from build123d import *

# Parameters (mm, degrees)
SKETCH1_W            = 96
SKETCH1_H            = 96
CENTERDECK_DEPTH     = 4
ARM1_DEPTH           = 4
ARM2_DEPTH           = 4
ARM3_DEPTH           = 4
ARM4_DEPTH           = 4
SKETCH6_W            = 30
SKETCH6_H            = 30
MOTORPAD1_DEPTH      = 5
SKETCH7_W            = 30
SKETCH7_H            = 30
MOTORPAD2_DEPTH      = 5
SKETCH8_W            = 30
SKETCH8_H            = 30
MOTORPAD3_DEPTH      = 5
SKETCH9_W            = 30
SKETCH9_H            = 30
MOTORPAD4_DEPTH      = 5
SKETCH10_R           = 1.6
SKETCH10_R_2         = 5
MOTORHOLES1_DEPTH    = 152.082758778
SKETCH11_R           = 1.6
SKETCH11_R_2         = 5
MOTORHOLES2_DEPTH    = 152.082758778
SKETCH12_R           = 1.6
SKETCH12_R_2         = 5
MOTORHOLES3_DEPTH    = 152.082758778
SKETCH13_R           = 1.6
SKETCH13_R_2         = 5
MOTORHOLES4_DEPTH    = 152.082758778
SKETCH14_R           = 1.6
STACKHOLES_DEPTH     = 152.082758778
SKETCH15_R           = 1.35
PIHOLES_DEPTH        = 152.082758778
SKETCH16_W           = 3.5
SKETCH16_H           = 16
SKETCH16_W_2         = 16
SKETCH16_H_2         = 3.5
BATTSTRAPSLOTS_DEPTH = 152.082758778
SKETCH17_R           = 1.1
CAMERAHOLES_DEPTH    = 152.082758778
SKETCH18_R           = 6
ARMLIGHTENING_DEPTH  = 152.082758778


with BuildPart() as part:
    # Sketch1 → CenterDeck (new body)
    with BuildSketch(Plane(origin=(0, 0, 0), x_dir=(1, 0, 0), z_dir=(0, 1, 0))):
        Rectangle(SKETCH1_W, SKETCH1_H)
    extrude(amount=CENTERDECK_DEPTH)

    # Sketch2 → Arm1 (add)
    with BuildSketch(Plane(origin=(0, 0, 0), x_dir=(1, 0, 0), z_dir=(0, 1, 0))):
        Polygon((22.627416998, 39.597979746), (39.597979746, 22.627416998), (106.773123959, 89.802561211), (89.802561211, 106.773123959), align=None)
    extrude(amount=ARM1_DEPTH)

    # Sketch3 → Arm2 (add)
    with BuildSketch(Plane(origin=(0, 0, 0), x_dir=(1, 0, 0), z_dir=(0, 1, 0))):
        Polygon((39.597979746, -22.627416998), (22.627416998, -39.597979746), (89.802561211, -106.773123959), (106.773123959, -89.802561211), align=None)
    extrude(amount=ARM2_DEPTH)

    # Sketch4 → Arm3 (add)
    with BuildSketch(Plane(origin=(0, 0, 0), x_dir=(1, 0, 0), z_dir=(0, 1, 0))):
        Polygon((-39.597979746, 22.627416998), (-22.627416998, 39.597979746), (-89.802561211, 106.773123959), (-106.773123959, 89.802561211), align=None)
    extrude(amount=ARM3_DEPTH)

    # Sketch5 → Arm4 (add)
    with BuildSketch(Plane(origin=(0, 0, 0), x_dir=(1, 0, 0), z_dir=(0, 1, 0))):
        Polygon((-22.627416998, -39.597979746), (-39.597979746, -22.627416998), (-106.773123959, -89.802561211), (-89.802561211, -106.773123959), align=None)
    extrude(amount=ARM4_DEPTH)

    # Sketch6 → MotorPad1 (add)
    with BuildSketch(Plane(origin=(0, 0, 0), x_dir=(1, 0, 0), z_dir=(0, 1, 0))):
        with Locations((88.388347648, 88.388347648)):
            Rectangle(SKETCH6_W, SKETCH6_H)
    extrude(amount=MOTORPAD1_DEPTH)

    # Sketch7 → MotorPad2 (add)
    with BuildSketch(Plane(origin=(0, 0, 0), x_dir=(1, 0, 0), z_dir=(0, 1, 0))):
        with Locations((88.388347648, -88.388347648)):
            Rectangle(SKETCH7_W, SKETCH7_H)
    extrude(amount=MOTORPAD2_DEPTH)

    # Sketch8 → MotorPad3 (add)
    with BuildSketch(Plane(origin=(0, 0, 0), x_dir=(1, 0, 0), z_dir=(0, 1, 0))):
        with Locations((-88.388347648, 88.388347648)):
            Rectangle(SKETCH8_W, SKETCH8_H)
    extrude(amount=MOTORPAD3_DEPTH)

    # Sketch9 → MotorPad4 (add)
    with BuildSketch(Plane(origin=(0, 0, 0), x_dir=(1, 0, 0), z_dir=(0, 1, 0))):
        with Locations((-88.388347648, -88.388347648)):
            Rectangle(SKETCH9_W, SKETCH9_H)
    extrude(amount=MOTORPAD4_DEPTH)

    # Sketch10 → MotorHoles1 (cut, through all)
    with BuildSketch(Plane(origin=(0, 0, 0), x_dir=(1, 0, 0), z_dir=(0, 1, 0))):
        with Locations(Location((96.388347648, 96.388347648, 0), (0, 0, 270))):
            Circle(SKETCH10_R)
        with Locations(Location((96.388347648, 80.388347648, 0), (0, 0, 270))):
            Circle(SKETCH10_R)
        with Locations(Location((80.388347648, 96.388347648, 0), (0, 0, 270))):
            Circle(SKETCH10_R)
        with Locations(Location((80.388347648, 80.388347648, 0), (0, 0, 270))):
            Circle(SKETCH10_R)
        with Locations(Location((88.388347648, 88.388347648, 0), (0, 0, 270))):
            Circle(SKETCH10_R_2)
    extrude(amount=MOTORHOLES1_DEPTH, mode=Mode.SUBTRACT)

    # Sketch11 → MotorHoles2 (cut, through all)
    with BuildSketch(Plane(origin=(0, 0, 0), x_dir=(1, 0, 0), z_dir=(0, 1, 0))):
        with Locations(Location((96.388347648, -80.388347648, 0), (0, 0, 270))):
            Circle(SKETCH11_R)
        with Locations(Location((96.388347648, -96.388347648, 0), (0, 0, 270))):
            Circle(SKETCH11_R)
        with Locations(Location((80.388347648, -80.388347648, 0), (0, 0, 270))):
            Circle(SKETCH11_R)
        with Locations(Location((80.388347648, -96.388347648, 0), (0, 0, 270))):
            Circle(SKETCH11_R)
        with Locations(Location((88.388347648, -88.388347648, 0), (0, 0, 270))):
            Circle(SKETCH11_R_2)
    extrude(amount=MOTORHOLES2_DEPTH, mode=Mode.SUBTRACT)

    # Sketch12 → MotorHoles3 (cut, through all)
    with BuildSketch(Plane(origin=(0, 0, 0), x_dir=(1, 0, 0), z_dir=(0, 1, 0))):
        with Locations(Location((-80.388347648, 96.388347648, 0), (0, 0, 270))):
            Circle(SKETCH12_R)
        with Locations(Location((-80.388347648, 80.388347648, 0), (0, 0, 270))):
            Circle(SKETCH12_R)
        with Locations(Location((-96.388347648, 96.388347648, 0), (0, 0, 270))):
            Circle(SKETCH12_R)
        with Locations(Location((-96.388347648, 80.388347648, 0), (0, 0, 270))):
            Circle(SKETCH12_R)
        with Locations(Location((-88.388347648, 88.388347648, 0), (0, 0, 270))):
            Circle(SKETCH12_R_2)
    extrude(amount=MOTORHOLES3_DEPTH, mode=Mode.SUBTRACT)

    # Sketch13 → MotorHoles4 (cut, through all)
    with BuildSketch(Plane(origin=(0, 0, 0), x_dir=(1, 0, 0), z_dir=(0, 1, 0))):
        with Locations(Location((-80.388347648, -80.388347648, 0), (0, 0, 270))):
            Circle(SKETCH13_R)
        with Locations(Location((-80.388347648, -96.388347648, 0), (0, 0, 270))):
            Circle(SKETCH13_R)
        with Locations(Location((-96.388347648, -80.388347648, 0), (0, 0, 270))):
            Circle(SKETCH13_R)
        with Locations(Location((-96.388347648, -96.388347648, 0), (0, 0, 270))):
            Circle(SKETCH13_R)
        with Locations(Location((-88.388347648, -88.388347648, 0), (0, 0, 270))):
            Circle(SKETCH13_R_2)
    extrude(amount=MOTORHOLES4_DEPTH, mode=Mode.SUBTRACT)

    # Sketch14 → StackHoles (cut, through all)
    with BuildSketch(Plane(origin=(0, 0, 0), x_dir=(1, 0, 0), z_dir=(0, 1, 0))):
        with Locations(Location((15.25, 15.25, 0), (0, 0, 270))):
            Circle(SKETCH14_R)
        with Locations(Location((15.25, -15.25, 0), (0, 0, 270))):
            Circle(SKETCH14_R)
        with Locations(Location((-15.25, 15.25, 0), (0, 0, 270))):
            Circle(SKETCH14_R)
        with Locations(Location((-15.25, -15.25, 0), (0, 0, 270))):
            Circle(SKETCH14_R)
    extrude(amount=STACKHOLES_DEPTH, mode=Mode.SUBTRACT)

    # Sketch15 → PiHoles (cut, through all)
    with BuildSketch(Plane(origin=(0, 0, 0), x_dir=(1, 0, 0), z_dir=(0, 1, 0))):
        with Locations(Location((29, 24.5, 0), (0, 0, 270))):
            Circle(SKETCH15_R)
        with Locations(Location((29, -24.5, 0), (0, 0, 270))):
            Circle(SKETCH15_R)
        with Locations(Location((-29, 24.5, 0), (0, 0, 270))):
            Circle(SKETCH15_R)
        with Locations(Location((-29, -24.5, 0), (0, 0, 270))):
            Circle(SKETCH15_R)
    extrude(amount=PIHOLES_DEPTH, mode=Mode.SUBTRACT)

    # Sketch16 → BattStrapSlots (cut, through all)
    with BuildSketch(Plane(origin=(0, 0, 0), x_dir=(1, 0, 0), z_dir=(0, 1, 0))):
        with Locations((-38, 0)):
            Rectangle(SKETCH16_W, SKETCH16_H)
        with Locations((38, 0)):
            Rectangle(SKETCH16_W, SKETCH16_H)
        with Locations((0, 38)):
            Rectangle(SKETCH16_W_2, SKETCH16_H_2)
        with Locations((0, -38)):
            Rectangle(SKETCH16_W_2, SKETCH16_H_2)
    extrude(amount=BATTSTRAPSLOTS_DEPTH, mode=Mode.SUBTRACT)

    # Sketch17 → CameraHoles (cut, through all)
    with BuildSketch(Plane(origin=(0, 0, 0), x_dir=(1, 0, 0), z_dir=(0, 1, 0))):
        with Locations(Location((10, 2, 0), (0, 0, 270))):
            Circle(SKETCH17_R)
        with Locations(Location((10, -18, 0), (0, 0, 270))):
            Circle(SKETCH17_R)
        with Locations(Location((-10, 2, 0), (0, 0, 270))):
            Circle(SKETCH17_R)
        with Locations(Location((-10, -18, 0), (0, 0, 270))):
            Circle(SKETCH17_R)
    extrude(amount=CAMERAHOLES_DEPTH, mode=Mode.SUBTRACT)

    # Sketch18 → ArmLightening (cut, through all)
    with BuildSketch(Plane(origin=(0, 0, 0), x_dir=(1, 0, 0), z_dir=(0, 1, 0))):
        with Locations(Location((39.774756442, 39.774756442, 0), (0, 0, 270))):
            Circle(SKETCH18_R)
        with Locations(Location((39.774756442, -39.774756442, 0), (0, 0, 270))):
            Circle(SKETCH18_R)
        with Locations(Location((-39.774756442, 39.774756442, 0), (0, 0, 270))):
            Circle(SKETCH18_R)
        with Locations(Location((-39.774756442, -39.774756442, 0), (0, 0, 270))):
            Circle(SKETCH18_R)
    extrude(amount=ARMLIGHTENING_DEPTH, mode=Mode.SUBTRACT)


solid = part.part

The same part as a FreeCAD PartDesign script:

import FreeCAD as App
import Part
import Sketcher

V = App.Vector
Q = App.Units.Quantity

doc = App.newDocument("Part")
body = doc.addObject("PartDesign::Body", "Body")

# Sketch on XZ plane
sketch1 = body.newObject("Sketcher::SketchObject", "Sketch")
sketch1.AttachmentSupport = (doc.getObject("XZ_Plane"), [""])
sketch1.MapMode = "FlatFace"
sketch1.addGeometry([
    Part.LineSegment(V(-48, -48, 0), V(-48, 48, 0)),
    Part.LineSegment(V(-48, 48, 0), V(48, 48, 0)),
    Part.LineSegment(V(48, 48, 0), V(48, -48, 0)),
    Part.LineSegment(V(48, -48, 0), V(-48, -48, 0)),
], False)
sketch1.addConstraint([
    Sketcher.Constraint("Coincident", 0, 2, 1, 1),
    Sketcher.Constraint("Coincident", 1, 2, 2, 1),
    Sketcher.Constraint("Coincident", 2, 2, 3, 1),
    Sketcher.Constraint("Coincident", 3, 2, 0, 1),
    Sketcher.Constraint("Vertical", 0),
    Sketcher.Constraint("Horizontal", 1),
    Sketcher.Constraint("Vertical", 2),
    Sketcher.Constraint("Horizontal", 3),
    Sketcher.Constraint("Symmetric", 0, 2, 2, 2, -1, 1),
    Sketcher.Constraint("Equal", 3, 0),
    Sketcher.Constraint("DistanceX", 1, 1, 1, 2, 96.0),
])
pad1 = body.newObject("PartDesign::Pad", "Pad")
pad1.Profile = sketch1
pad1.Length = 4
pad1.Reversed = True

# Sketch on XZ plane
sketch2 = body.newObject("Sketcher::SketchObject", "Sketch001")
sketch2.AttachmentSupport = (doc.getObject("XZ_Plane"), [""])
sketch2.MapMode = "FlatFace"
sketch2.addGeometry([
    Part.LineSegment(V(22.627417, -39.59798, 0), V(39.59798, -22.627417, 0)),
    Part.LineSegment(V(39.59798, -22.627417, 0), V(106.773124, -89.802561, 0)),
    Part.LineSegment(V(106.773124, -89.802561, 0), V(89.802561, -106.773124, 0)),
    Part.LineSegment(V(89.802561, -106.773124, 0), V(22.627417, -39.59798, 0)),
], False)
sketch2.addConstraint([
    Sketcher.Constraint("Coincident", 0, 2, 1, 1),
    Sketcher.Constraint("Coincident", 1, 2, 2, 1),
    Sketcher.Constraint("Coincident", 2, 2, 3, 1),
    Sketcher.Constraint("Coincident", 3, 2, 0, 1),
    Sketcher.Constraint("Perpendicular", 0, 1),
    Sketcher.Constraint("Perpendicular", 1, 2),
    Sketcher.Constraint("Perpendicular", 2, 3),
    Sketcher.Constraint("Angle", 0, Q("45 deg")),
    Sketcher.Constraint("Distance", 0, 24.0),
    Sketcher.Constraint("Distance", 1, 95.0),
    Sketcher.Constraint("DistanceX", -1, 1, 0, 2, 39.59798),
    Sketcher.Constraint("DistanceY", 1, 2, -1, 1, 89.802561),
])
pad2 = body.newObject("PartDesign::Pad", "Pad001")
pad2.Profile = sketch2
pad2.Length = 4
pad2.Reversed = True

# Sketch on XZ plane
sketch3 = body.newObject("Sketcher::SketchObject", "Sketch002")
sketch3.AttachmentSupport = (doc.getObject("XZ_Plane"), [""])
sketch3.MapMode = "FlatFace"
sketch3.addGeometry([
    Part.LineSegment(V(39.59798, 22.627417, 0), V(22.627417, 39.59798, 0)),
    Part.LineSegment(V(22.627417, 39.59798, 0), V(89.802561, 106.773124, 0)),
    Part.LineSegment(V(89.802561, 106.773124, 0), V(106.773124, 89.802561, 0)),
    Part.LineSegment(V(106.773124, 89.802561, 0), V(39.59798, 22.627417, 0)),
], False)
sketch3.addConstraint([
    Sketcher.Constraint("Coincident", 0, 2, 1, 1),
    Sketcher.Constraint("Coincident", 1, 2, 2, 1),
    Sketcher.Constraint("Coincident", 2, 2, 3, 1),
    Sketcher.Constraint("Coincident", 3, 2, 0, 1),
    Sketcher.Constraint("Perpendicular", 0, 1),
    Sketcher.Constraint("Perpendicular", 1, 2),
    Sketcher.Constraint("Perpendicular", 2, 3),
    Sketcher.Constraint("Angle", 0, Q("135 deg")),
    Sketcher.Constraint("Distance", 0, 24.0),
    Sketcher.Constraint("Distance", 1, 95.0),
    Sketcher.Constraint("DistanceY", -1, 1, 0, 2, 39.59798),
    Sketcher.Constraint("DistanceX", -1, 1, 1, 2, 89.802561),
])
pad3 = body.newObject("PartDesign::Pad", "Pad002")
pad3.Profile = sketch3
pad3.Length = 4
pad3.Reversed = True

# Sketch on XZ plane
sketch4 = body.newObject("Sketcher::SketchObject", "Sketch003")
sketch4.AttachmentSupport = (doc.getObject("XZ_Plane"), [""])
sketch4.MapMode = "FlatFace"
sketch4.addGeometry([
    Part.LineSegment(V(-39.59798, -22.627417, 0), V(-22.627417, -39.59798, 0)),
    Part.LineSegment(V(-22.627417, -39.59798, 0), V(-89.802561, -106.773124, 0)),
    Part.LineSegment(V(-89.802561, -106.773124, 0), V(-106.773124, -89.802561, 0)),
    Part.LineSegment(V(-106.773124, -89.802561, 0), V(-39.59798, -22.627417, 0)),
], False)
sketch4.addConstraint([
    Sketcher.Constraint("Coincident", 0, 2, 1, 1),
    Sketcher.Constraint("Coincident", 1, 2, 2, 1),
    Sketcher.Constraint("Coincident", 2, 2, 3, 1),
    Sketcher.Constraint("Coincident", 3, 2, 0, 1),
    Sketcher.Constraint("Perpendicular", 0, 1),
    Sketcher.Constraint("Perpendicular", 1, 2),
    Sketcher.Constraint("Perpendicular", 2, 3),
    Sketcher.Constraint("Angle", 0, Q("-45 deg")),
    Sketcher.Constraint("Distance", 0, 24.0),
    Sketcher.Constraint("Distance", 1, 95.0),
    Sketcher.Constraint("DistanceY", 0, 2, -1, 1, 39.59798),
    Sketcher.Constraint("DistanceX", 1, 2, -1, 1, 89.802561),
])
pad4 = body.newObject("PartDesign::Pad", "Pad003")
pad4.Profile = sketch4
pad4.Length = 4
pad4.Reversed = True

# Sketch on XZ plane
sketch5 = body.newObject("Sketcher::SketchObject", "Sketch004")
sketch5.AttachmentSupport = (doc.getObject("XZ_Plane"), [""])
sketch5.MapMode = "FlatFace"
sketch5.addGeometry([
    Part.LineSegment(V(-22.627417, 39.59798, 0), V(-39.59798, 22.627417, 0)),
    Part.LineSegment(V(-39.59798, 22.627417, 0), V(-106.773124, 89.802561, 0)),
    Part.LineSegment(V(-106.773124, 89.802561, 0), V(-89.802561, 106.773124, 0)),
    Part.LineSegment(V(-89.802561, 106.773124, 0), V(-22.627417, 39.59798, 0)),
], False)
sketch5.addConstraint([
    Sketcher.Constraint("Coincident", 0, 2, 1, 1),
    Sketcher.Constraint("Coincident", 1, 2, 2, 1),
    Sketcher.Constraint("Coincident", 2, 2, 3, 1),
    Sketcher.Constraint("Coincident", 3, 2, 0, 1),
    Sketcher.Constraint("Perpendicular", 0, 1),
    Sketcher.Constraint("Perpendicular", 1, 2),
    Sketcher.Constraint("Perpendicular", 2, 3),
    Sketcher.Constraint("Angle", 0, Q("-135 deg")),
    Sketcher.Constraint("Distance", 0, 24.0),
    Sketcher.Constraint("Distance", 1, 95.0),
    Sketcher.Constraint("DistanceX", 0, 2, -1, 1, 39.59798),
    Sketcher.Constraint("DistanceY", -1, 1, 1, 2, 89.802561),
])
pad5 = body.newObject("PartDesign::Pad", "Pad004")
pad5.Profile = sketch5
pad5.Length = 4
pad5.Reversed = True

# Sketch on XZ plane
sketch6 = body.newObject("Sketcher::SketchObject", "Sketch005")
sketch6.AttachmentSupport = (doc.getObject("XZ_Plane"), [""])
sketch6.MapMode = "FlatFace"
sketch6.addGeometry([
    Part.LineSegment(V(73.388348, -103.388348, 0), V(73.388348, -73.388348, 0)),
    Part.LineSegment(V(73.388348, -73.388348, 0), V(103.388348, -73.388348, 0)),
    Part.LineSegment(V(103.388348, -73.388348, 0), V(103.388348, -103.388348, 0)),
    Part.LineSegment(V(103.388348, -103.388348, 0), V(73.388348, -103.388348, 0)),
], False)
sketch6.addConstraint([
    Sketcher.Constraint("Coincident", 0, 2, 1, 1),
    Sketcher.Constraint("Coincident", 1, 2, 2, 1),
    Sketcher.Constraint("Coincident", 2, 2, 3, 1),
    Sketcher.Constraint("Coincident", 3, 2, 0, 1),
    Sketcher.Constraint("Vertical", 0),
    Sketcher.Constraint("Horizontal", 1),
    Sketcher.Constraint("Vertical", 2),
    Sketcher.Constraint("Horizontal", 3),
    Sketcher.Constraint("Equal", 3, 0),
    Sketcher.Constraint("DistanceX", 1, 1, 1, 2, 30.0),
    Sketcher.Constraint("DistanceX", -1, 1, 0, 2, 73.388348),
    Sketcher.Constraint("DistanceY", 0, 2, -1, 1, 73.388348),
])
pad6 = body.newObject("PartDesign::Pad", "Pad005")
pad6.Profile = sketch6
pad6.Length = 5
pad6.Reversed = True

# Sketch on XZ plane
sketch7 = body.newObject("Sketcher::SketchObject", "Sketch006")
sketch7.AttachmentSupport = (doc.getObject("XZ_Plane"), [""])
sketch7.MapMode = "FlatFace"
sketch7.addGeometry([
    Part.LineSegment(V(73.388348, 73.388348, 0), V(73.388348, 103.388348, 0)),
    Part.LineSegment(V(73.388348, 103.388348, 0), V(103.388348, 103.388348, 0)),
    Part.LineSegment(V(103.388348, 103.388348, 0), V(103.388348, 73.388348, 0)),
    Part.LineSegment(V(103.388348, 73.388348, 0), V(73.388348, 73.388348, 0)),
], False)
sketch7.addConstraint([
    Sketcher.Constraint("Coincident", 0, 2, 1, 1),
    Sketcher.Constraint("Coincident", 1, 2, 2, 1),
    Sketcher.Constraint("Coincident", 2, 2, 3, 1),
    Sketcher.Constraint("Coincident", 3, 2, 0, 1),
    Sketcher.Constraint("Vertical", 0),
    Sketcher.Constraint("Horizontal", 1),
    Sketcher.Constraint("Vertical", 2),
    Sketcher.Constraint("Horizontal", 3),
    Sketcher.Constraint("Equal", 3, 0),
    Sketcher.Constraint("DistanceX", 1, 1, 1, 2, 30.0),
    Sketcher.Constraint("DistanceX", -1, 1, 0, 2, 73.388348),
    Sketcher.Constraint("DistanceY", -1, 1, 0, 2, 103.388348),
])
pad7 = body.newObject("PartDesign::Pad", "Pad006")
pad7.Profile = sketch7
pad7.Length = 5
pad7.Reversed = True

# Sketch on XZ plane
sketch8 = body.newObject("Sketcher::SketchObject", "Sketch007")
sketch8.AttachmentSupport = (doc.getObject("XZ_Plane"), [""])
sketch8.MapMode = "FlatFace"
sketch8.addGeometry([
    Part.LineSegment(V(-103.388348, -103.388348, 0), V(-103.388348, -73.388348, 0)),
    Part.LineSegment(V(-103.388348, -73.388348, 0), V(-73.388348, -73.388348, 0)),
    Part.LineSegment(V(-73.388348, -73.388348, 0), V(-73.388348, -103.388348, 0)),
    Part.LineSegment(V(-73.388348, -103.388348, 0), V(-103.388348, -103.388348, 0)),
], False)
sketch8.addConstraint([
    Sketcher.Constraint("Coincident", 0, 2, 1, 1),
    Sketcher.Constraint("Coincident", 1, 2, 2, 1),
    Sketcher.Constraint("Coincident", 2, 2, 3, 1),
    Sketcher.Constraint("Coincident", 3, 2, 0, 1),
    Sketcher.Constraint("Vertical", 0),
    Sketcher.Constraint("Horizontal", 1),
    Sketcher.Constraint("Vertical", 2),
    Sketcher.Constraint("Horizontal", 3),
    Sketcher.Constraint("Equal", 3, 0),
    Sketcher.Constraint("DistanceX", 1, 1, 1, 2, 30.0),
    Sketcher.Constraint("DistanceX", 0, 2, -1, 1, 103.388348),
    Sketcher.Constraint("DistanceY", 0, 2, -1, 1, 73.388348),
])
pad8 = body.newObject("PartDesign::Pad", "Pad007")
pad8.Profile = sketch8
pad8.Length = 5
pad8.Reversed = True

# Sketch on XZ plane
sketch9 = body.newObject("Sketcher::SketchObject", "Sketch008")
sketch9.AttachmentSupport = (doc.getObject("XZ_Plane"), [""])
sketch9.MapMode = "FlatFace"
sketch9.addGeometry([
    Part.LineSegment(V(-103.388348, 73.388348, 0), V(-103.388348, 103.388348, 0)),
    Part.LineSegment(V(-103.388348, 103.388348, 0), V(-73.388348, 103.388348, 0)),
    Part.LineSegment(V(-73.388348, 103.388348, 0), V(-73.388348, 73.388348, 0)),
    Part.LineSegment(V(-73.388348, 73.388348, 0), V(-103.388348, 73.388348, 0)),
], False)
sketch9.addConstraint([
    Sketcher.Constraint("Coincident", 0, 2, 1, 1),
    Sketcher.Constraint("Coincident", 1, 2, 2, 1),
    Sketcher.Constraint("Coincident", 2, 2, 3, 1),
    Sketcher.Constraint("Coincident", 3, 2, 0, 1),
    Sketcher.Constraint("Vertical", 0),
    Sketcher.Constraint("Horizontal", 1),
    Sketcher.Constraint("Vertical", 2),
    Sketcher.Constraint("Horizontal", 3),
    Sketcher.Constraint("Equal", 3, 0),
    Sketcher.Constraint("DistanceX", 1, 1, 1, 2, 30.0),
    Sketcher.Constraint("DistanceX", 0, 2, -1, 1, 103.388348),
    Sketcher.Constraint("DistanceY", -1, 1, 0, 2, 103.388348),
])
pad9 = body.newObject("PartDesign::Pad", "Pad008")
pad9.Profile = sketch9
pad9.Length = 5
pad9.Reversed = True

# Sketch on XZ plane
sketch10 = body.newObject("Sketcher::SketchObject", "Sketch009")
sketch10.AttachmentSupport = (doc.getObject("XZ_Plane"), [""])
sketch10.MapMode = "FlatFace"
sketch10.addGeometry([
    Part.Circle(V(96.388348, -96.388348, 0), V(0, 0, 1), 1.6),  # 0
    Part.Circle(V(96.388348, -80.388348, 0), V(0, 0, 1), 1.6),  # 1
    Part.Circle(V(80.388348, -96.388348, 0), V(0, 0, 1), 1.6),  # 2
    Part.Circle(V(80.388348, -80.388348, 0), V(0, 0, 1), 1.6),  # 3
    Part.Circle(V(88.388348, -88.388348, 0), V(0, 0, 1), 5),  # 4
], False)
sketch10.addConstraint([
    Sketcher.Constraint("Equal", 0, 1),
    Sketcher.Constraint("Equal", 1, 2),
    Sketcher.Constraint("Equal", 2, 3),
    Sketcher.Constraint("Horizontal", 0, 3, 2, 3),
    Sketcher.Constraint("Horizontal", 1, 3, 3, 3),
    Sketcher.Constraint("Vertical", 0, 3, 1, 3),
    Sketcher.Constraint("Vertical", 2, 3, 3, 3),
    Sketcher.Constraint("Diameter", 4, 10.0),
    Sketcher.Constraint("Diameter", 0, 3.2),
    Sketcher.Constraint("DistanceY", 0, 3, 1, 3, 16.0),
    Sketcher.Constraint("DistanceX", 2, 3, 0, 3, 16.0),
    Sketcher.Constraint("DistanceX", 4, 3, 0, 3, 8.0),
    Sketcher.Constraint("DistanceY", 0, 3, 4, 3, 8.0),
    Sketcher.Constraint("DistanceX", -1, 1, 0, 3, 96.388348),
    Sketcher.Constraint("DistanceY", 0, 3, -1, 1, 96.388348),
])
pocket1 = body.newObject("PartDesign::Pocket", "Pocket")
pocket1.Profile = sketch10
pocket1.Type = "ThroughAll"

# Sketch on XZ plane
sketch11 = body.newObject("Sketcher::SketchObject", "Sketch010")
sketch11.AttachmentSupport = (doc.getObject("XZ_Plane"), [""])
sketch11.MapMode = "FlatFace"
sketch11.addGeometry([
    Part.Circle(V(96.388348, 80.388348, 0), V(0, 0, 1), 1.6),  # 0
    Part.Circle(V(96.388348, 96.388348, 0), V(0, 0, 1), 1.6),  # 1
    Part.Circle(V(80.388348, 80.388348, 0), V(0, 0, 1), 1.6),  # 2
    Part.Circle(V(80.388348, 96.388348, 0), V(0, 0, 1), 1.6),  # 3
    Part.Circle(V(88.388348, 88.388348, 0), V(0, 0, 1), 5),  # 4
], False)
sketch11.addConstraint([
    Sketcher.Constraint("Equal", 0, 1),
    Sketcher.Constraint("Equal", 1, 2),
    Sketcher.Constraint("Equal", 2, 3),
    Sketcher.Constraint("Horizontal", 0, 3, 2, 3),
    Sketcher.Constraint("Horizontal", 1, 3, 3, 3),
    Sketcher.Constraint("Vertical", 0, 3, 1, 3),
    Sketcher.Constraint("Vertical", 2, 3, 3, 3),
    Sketcher.Constraint("Diameter", 4, 10.0),
    Sketcher.Constraint("Diameter", 0, 3.2),
    Sketcher.Constraint("DistanceY", 0, 3, 1, 3, 16.0),
    Sketcher.Constraint("DistanceX", 2, 3, 0, 3, 16.0),
    Sketcher.Constraint("DistanceX", 4, 3, 0, 3, 8.0),
    Sketcher.Constraint("DistanceY", 0, 3, 4, 3, 8.0),
    Sketcher.Constraint("DistanceX", -1, 1, 0, 3, 96.388348),
    Sketcher.Constraint("DistanceY", -1, 1, 0, 3, 80.388348),
])
pocket2 = body.newObject("PartDesign::Pocket", "Pocket001")
pocket2.Profile = sketch11
pocket2.Type = "ThroughAll"

# Sketch on XZ plane
sketch12 = body.newObject("Sketcher::SketchObject", "Sketch011")
sketch12.AttachmentSupport = (doc.getObject("XZ_Plane"), [""])
sketch12.MapMode = "FlatFace"
sketch12.addGeometry([
    Part.Circle(V(-80.388348, -96.388348, 0), V(0, 0, 1), 1.6),  # 0
    Part.Circle(V(-80.388348, -80.388348, 0), V(0, 0, 1), 1.6),  # 1
    Part.Circle(V(-96.388348, -96.388348, 0), V(0, 0, 1), 1.6),  # 2
    Part.Circle(V(-96.388348, -80.388348, 0), V(0, 0, 1), 1.6),  # 3
    Part.Circle(V(-88.388348, -88.388348, 0), V(0, 0, 1), 5),  # 4
], False)
sketch12.addConstraint([
    Sketcher.Constraint("Equal", 0, 1),
    Sketcher.Constraint("Equal", 1, 2),
    Sketcher.Constraint("Equal", 2, 3),
    Sketcher.Constraint("Horizontal", 0, 3, 2, 3),
    Sketcher.Constraint("Horizontal", 1, 3, 3, 3),
    Sketcher.Constraint("Vertical", 0, 3, 1, 3),
    Sketcher.Constraint("Vertical", 2, 3, 3, 3),
    Sketcher.Constraint("Diameter", 4, 10.0),
    Sketcher.Constraint("Diameter", 0, 3.2),
    Sketcher.Constraint("DistanceY", 0, 3, 1, 3, 16.0),
    Sketcher.Constraint("DistanceX", 2, 3, 0, 3, 16.0),
    Sketcher.Constraint("DistanceX", 4, 3, 0, 3, 8.0),
    Sketcher.Constraint("DistanceY", 0, 3, 4, 3, 8.0),
    Sketcher.Constraint("DistanceX", 0, 3, -1, 1, 80.388348),
    Sketcher.Constraint("DistanceY", 0, 3, -1, 1, 96.388348),
])
pocket3 = body.newObject("PartDesign::Pocket", "Pocket002")
pocket3.Profile = sketch12
pocket3.Type = "ThroughAll"

# Sketch on XZ plane
sketch13 = body.newObject("Sketcher::SketchObject", "Sketch012")
sketch13.AttachmentSupport = (doc.getObject("XZ_Plane"), [""])
sketch13.MapMode = "FlatFace"
sketch13.addGeometry([
    Part.Circle(V(-80.388348, 80.388348, 0), V(0, 0, 1), 1.6),  # 0
    Part.Circle(V(-80.388348, 96.388348, 0), V(0, 0, 1), 1.6),  # 1
    Part.Circle(V(-96.388348, 80.388348, 0), V(0, 0, 1), 1.6),  # 2
    Part.Circle(V(-96.388348, 96.388348, 0), V(0, 0, 1), 1.6),  # 3
    Part.Circle(V(-88.388348, 88.388348, 0), V(0, 0, 1), 5),  # 4
], False)
sketch13.addConstraint([
    Sketcher.Constraint("Equal", 0, 1),
    Sketcher.Constraint("Equal", 1, 2),
    Sketcher.Constraint("Equal", 2, 3),
    Sketcher.Constraint("Horizontal", 0, 3, 2, 3),
    Sketcher.Constraint("Horizontal", 1, 3, 3, 3),
    Sketcher.Constraint("Vertical", 0, 3, 1, 3),
    Sketcher.Constraint("Vertical", 2, 3, 3, 3),
    Sketcher.Constraint("Diameter", 4, 10.0),
    Sketcher.Constraint("Diameter", 0, 3.2),
    Sketcher.Constraint("DistanceY", 0, 3, 1, 3, 16.0),
    Sketcher.Constraint("DistanceX", 2, 3, 0, 3, 16.0),
    Sketcher.Constraint("DistanceX", 4, 3, 0, 3, 8.0),
    Sketcher.Constraint("DistanceY", 0, 3, 4, 3, 8.0),
    Sketcher.Constraint("DistanceX", 0, 3, -1, 1, 80.388348),
    Sketcher.Constraint("DistanceY", -1, 1, 0, 3, 80.388348),
])
pocket4 = body.newObject("PartDesign::Pocket", "Pocket003")
pocket4.Profile = sketch13
pocket4.Type = "ThroughAll"

# Sketch on XZ plane
sketch14 = body.newObject("Sketcher::SketchObject", "Sketch013")
sketch14.AttachmentSupport = (doc.getObject("XZ_Plane"), [""])
sketch14.MapMode = "FlatFace"
sketch14.addGeometry([
    Part.Circle(V(15.25, -15.25, 0), V(0, 0, 1), 1.6),
    Part.Circle(V(15.25, 15.25, 0), V(0, 0, 1), 1.6),
    Part.Circle(V(-15.25, -15.25, 0), V(0, 0, 1), 1.6),
    Part.Circle(V(-15.25, 15.25, 0), V(0, 0, 1), 1.6),
], False)
sketch14.addConstraint([
    Sketcher.Constraint("Equal", 0, 1),
    Sketcher.Constraint("Equal", 1, 2),
    Sketcher.Constraint("Equal", 2, 3),
    Sketcher.Constraint("Symmetric", 1, 3, 2, 3, -1, 1),
    Sketcher.Constraint("Symmetric", 0, 3, 3, 3, -1, 1),
    Sketcher.Constraint("Symmetric", 0, 3, 2, 3, -2),
    Sketcher.Constraint("Diameter", 0, 3.2),
    Sketcher.Constraint("DistanceY", 0, 3, 1, 3, 30.5),
    Sketcher.Constraint("DistanceX", 2, 3, 0, 3, 30.5),
])
pocket5 = body.newObject("PartDesign::Pocket", "Pocket004")
pocket5.Profile = sketch14
pocket5.Type = "ThroughAll"

# Sketch on XZ plane
sketch15 = body.newObject("Sketcher::SketchObject", "Sketch014")
sketch15.AttachmentSupport = (doc.getObject("XZ_Plane"), [""])
sketch15.MapMode = "FlatFace"
sketch15.addGeometry([
    Part.Circle(V(29, -24.5, 0), V(0, 0, 1), 1.35),
    Part.Circle(V(29, 24.5, 0), V(0, 0, 1), 1.35),
    Part.Circle(V(-29, -24.5, 0), V(0, 0, 1), 1.35),
    Part.Circle(V(-29, 24.5, 0), V(0, 0, 1), 1.35),
], False)
sketch15.addConstraint([
    Sketcher.Constraint("Equal", 0, 1),
    Sketcher.Constraint("Equal", 1, 2),
    Sketcher.Constraint("Equal", 2, 3),
    Sketcher.Constraint("Symmetric", 1, 3, 2, 3, -1, 1),
    Sketcher.Constraint("Symmetric", 0, 3, 3, 3, -1, 1),
    Sketcher.Constraint("Symmetric", 0, 3, 2, 3, -2),
    Sketcher.Constraint("Diameter", 0, 2.7),
    Sketcher.Constraint("DistanceX", -1, 1, 0, 3, 29.0),
    Sketcher.Constraint("DistanceY", 0, 3, 1, 3, 49.0),
])
pocket6 = body.newObject("PartDesign::Pocket", "Pocket005")
pocket6.Profile = sketch15
pocket6.Type = "ThroughAll"

# Sketch on XZ plane
sketch16 = body.newObject("Sketcher::SketchObject", "Sketch015")
sketch16.AttachmentSupport = (doc.getObject("XZ_Plane"), [""])
sketch16.MapMode = "FlatFace"
sketch16.addGeometry([
    Part.LineSegment(V(-39.75, -8, 0), V(-39.75, 8, 0)),  # 0
    Part.LineSegment(V(-39.75, 8, 0), V(-36.25, 8, 0)),  # 1
    Part.LineSegment(V(-36.25, 8, 0), V(-36.25, -8, 0)),  # 2
    Part.LineSegment(V(-36.25, -8, 0), V(-39.75, -8, 0)),  # 3
    Part.LineSegment(V(36.25, -8, 0), V(36.25, 8, 0)),  # 4
    Part.LineSegment(V(36.25, 8, 0), V(39.75, 8, 0)),  # 5
    Part.LineSegment(V(39.75, 8, 0), V(39.75, -8, 0)),  # 6
    Part.LineSegment(V(39.75, -8, 0), V(36.25, -8, 0)),  # 7
    Part.LineSegment(V(-8, -39.75, 0), V(-8, -36.25, 0)),  # 8
    Part.LineSegment(V(-8, -36.25, 0), V(8, -36.25, 0)),  # 9
    Part.LineSegment(V(8, -36.25, 0), V(8, -39.75, 0)),  # 10
    Part.LineSegment(V(8, -39.75, 0), V(-8, -39.75, 0)),  # 11
    Part.LineSegment(V(-8, 36.25, 0), V(-8, 39.75, 0)),  # 12
    Part.LineSegment(V(-8, 39.75, 0), V(8, 39.75, 0)),  # 13
    Part.LineSegment(V(8, 39.75, 0), V(8, 36.25, 0)),  # 14
    Part.LineSegment(V(8, 36.25, 0), V(-8, 36.25, 0)),  # 15
], False)
sketch16.addConstraint([
    Sketcher.Constraint("Coincident", 0, 2, 1, 1),
    Sketcher.Constraint("Coincident", 1, 2, 2, 1),
    Sketcher.Constraint("Coincident", 2, 2, 3, 1),
    Sketcher.Constraint("Coincident", 3, 2, 0, 1),
    Sketcher.Constraint("Coincident", 4, 2, 5, 1),
    Sketcher.Constraint("Coincident", 5, 2, 6, 1),
    Sketcher.Constraint("Coincident", 6, 2, 7, 1),
    Sketcher.Constraint("Coincident", 7, 2, 4, 1),
    Sketcher.Constraint("Coincident", 8, 2, 9, 1),
    Sketcher.Constraint("Coincident", 9, 2, 10, 1),
    Sketcher.Constraint("Coincident", 10, 2, 11, 1),
    Sketcher.Constraint("Coincident", 11, 2, 8, 1),
    Sketcher.Constraint("Coincident", 12, 2, 13, 1),
    Sketcher.Constraint("Coincident", 13, 2, 14, 1),
    Sketcher.Constraint("Coincident", 14, 2, 15, 1),
    Sketcher.Constraint("Coincident", 15, 2, 12, 1),
    Sketcher.Constraint("Vertical", 0),
    Sketcher.Constraint("Horizontal", 1),
    Sketcher.Constraint("Vertical", 2),
    Sketcher.Constraint("Horizontal", 3),
    Sketcher.Constraint("Vertical", 4),
    Sketcher.Constraint("Horizontal", 5),
    Sketcher.Constraint("Vertical", 6),
    Sketcher.Constraint("Horizontal", 7),
    Sketcher.Constraint("Vertical", 8),
    Sketcher.Constraint("Horizontal", 9),
    Sketcher.Constraint("Vertical", 10),
    Sketcher.Constraint("Horizontal", 11),
    Sketcher.Constraint("Vertical", 12),
    Sketcher.Constraint("Horizontal", 13),
    Sketcher.Constraint("Vertical", 14),
    Sketcher.Constraint("Horizontal", 15),
    Sketcher.Constraint("Symmetric", 2, 2, 4, 2, -1, 1),
    Sketcher.Constraint("Symmetric", 0, 2, 6, 2, -1, 1),
    Sketcher.Constraint("Symmetric", 10, 2, 12, 2, -1, 1),
    Sketcher.Constraint("Symmetric", 8, 2, 14, 2, -1, 1),
    Sketcher.Constraint("Horizontal", 1, 2, 4, 2),
    Sketcher.Constraint("Vertical", 11, 2, 12, 2),
    Sketcher.Constraint("Equal", 15, 0),
    Sketcher.Constraint("Equal", 7, 8),
    Sketcher.Constraint("DistanceX", 9, 1, 9, 2, 16.0),
    Sketcher.Constraint("DistanceX", 1, 1, 1, 2, 3.5),
    Sketcher.Constraint("DistanceX", 0, 2, 4, 2, 76.0),
    Sketcher.Constraint("DistanceY", 8, 2, -1, 1, 36.25),
])
pocket7 = body.newObject("PartDesign::Pocket", "Pocket006")
pocket7.Profile = sketch16
pocket7.Type = "ThroughAll"

# Sketch on XZ plane
sketch17 = body.newObject("Sketcher::SketchObject", "Sketch016")
sketch17.AttachmentSupport = (doc.getObject("XZ_Plane"), [""])
sketch17.MapMode = "FlatFace"
sketch17.addGeometry([
    Part.Circle(V(10, -2, 0), V(0, 0, 1), 1.1),
    Part.Circle(V(10, 18, 0), V(0, 0, 1), 1.1),
    Part.Circle(V(-10, -2, 0), V(0, 0, 1), 1.1),
    Part.Circle(V(-10, 18, 0), V(0, 0, 1), 1.1),
], False)
sketch17.addConstraint([
    Sketcher.Constraint("Equal", 0, 1),
    Sketcher.Constraint("Equal", 1, 2),
    Sketcher.Constraint("Equal", 2, 3),
    Sketcher.Constraint("Symmetric", 0, 3, 2, 3, -2),
    Sketcher.Constraint("Symmetric", 1, 3, 3, 3, -2),
    Sketcher.Constraint("Vertical", 0, 3, 1, 3),
    Sketcher.Constraint("Diameter", 0, 2.2),
    Sketcher.Constraint("DistanceX", -1, 1, 0, 3, 10.0),
    Sketcher.Constraint("DistanceY", 0, 3, -1, 1, 2.0),
    Sketcher.Constraint("DistanceY", -1, 1, 1, 3, 18.0),
])
pocket8 = body.newObject("PartDesign::Pocket", "Pocket007")
pocket8.Profile = sketch17
pocket8.Type = "ThroughAll"

# Sketch on XZ plane
sketch18 = body.newObject("Sketcher::SketchObject", "Sketch017")
sketch18.AttachmentSupport = (doc.getObject("XZ_Plane"), [""])
sketch18.MapMode = "FlatFace"
sketch18.addGeometry([
    Part.Circle(V(39.774756, -39.774756, 0), V(0, 0, 1), 6),
    Part.Circle(V(39.774756, 39.774756, 0), V(0, 0, 1), 6),
    Part.Circle(V(-39.774756, -39.774756, 0), V(0, 0, 1), 6),
    Part.Circle(V(-39.774756, 39.774756, 0), V(0, 0, 1), 6),
], False)
sketch18.addConstraint([
    Sketcher.Constraint("Equal", 0, 1),
    Sketcher.Constraint("Equal", 1, 2),
    Sketcher.Constraint("Equal", 2, 3),
    Sketcher.Constraint("Symmetric", 1, 3, 2, 3, -1, 1),
    Sketcher.Constraint("Symmetric", 0, 3, 3, 3, -1, 1),
    Sketcher.Constraint("Symmetric", 0, 3, 2, 3, -2),
    Sketcher.Constraint("Diameter", 0, 12.0),
    Sketcher.Constraint("DistanceX", -1, 1, 0, 3, 39.774756),
    Sketcher.Constraint("DistanceY", 0, 3, -1, 1, 39.774756),
])
pocket9 = body.newObject("PartDesign::Pocket", "Pocket008")
pocket9.Profile = sketch18
pocket9.Type = "ThroughAll"

doc.recompute()
